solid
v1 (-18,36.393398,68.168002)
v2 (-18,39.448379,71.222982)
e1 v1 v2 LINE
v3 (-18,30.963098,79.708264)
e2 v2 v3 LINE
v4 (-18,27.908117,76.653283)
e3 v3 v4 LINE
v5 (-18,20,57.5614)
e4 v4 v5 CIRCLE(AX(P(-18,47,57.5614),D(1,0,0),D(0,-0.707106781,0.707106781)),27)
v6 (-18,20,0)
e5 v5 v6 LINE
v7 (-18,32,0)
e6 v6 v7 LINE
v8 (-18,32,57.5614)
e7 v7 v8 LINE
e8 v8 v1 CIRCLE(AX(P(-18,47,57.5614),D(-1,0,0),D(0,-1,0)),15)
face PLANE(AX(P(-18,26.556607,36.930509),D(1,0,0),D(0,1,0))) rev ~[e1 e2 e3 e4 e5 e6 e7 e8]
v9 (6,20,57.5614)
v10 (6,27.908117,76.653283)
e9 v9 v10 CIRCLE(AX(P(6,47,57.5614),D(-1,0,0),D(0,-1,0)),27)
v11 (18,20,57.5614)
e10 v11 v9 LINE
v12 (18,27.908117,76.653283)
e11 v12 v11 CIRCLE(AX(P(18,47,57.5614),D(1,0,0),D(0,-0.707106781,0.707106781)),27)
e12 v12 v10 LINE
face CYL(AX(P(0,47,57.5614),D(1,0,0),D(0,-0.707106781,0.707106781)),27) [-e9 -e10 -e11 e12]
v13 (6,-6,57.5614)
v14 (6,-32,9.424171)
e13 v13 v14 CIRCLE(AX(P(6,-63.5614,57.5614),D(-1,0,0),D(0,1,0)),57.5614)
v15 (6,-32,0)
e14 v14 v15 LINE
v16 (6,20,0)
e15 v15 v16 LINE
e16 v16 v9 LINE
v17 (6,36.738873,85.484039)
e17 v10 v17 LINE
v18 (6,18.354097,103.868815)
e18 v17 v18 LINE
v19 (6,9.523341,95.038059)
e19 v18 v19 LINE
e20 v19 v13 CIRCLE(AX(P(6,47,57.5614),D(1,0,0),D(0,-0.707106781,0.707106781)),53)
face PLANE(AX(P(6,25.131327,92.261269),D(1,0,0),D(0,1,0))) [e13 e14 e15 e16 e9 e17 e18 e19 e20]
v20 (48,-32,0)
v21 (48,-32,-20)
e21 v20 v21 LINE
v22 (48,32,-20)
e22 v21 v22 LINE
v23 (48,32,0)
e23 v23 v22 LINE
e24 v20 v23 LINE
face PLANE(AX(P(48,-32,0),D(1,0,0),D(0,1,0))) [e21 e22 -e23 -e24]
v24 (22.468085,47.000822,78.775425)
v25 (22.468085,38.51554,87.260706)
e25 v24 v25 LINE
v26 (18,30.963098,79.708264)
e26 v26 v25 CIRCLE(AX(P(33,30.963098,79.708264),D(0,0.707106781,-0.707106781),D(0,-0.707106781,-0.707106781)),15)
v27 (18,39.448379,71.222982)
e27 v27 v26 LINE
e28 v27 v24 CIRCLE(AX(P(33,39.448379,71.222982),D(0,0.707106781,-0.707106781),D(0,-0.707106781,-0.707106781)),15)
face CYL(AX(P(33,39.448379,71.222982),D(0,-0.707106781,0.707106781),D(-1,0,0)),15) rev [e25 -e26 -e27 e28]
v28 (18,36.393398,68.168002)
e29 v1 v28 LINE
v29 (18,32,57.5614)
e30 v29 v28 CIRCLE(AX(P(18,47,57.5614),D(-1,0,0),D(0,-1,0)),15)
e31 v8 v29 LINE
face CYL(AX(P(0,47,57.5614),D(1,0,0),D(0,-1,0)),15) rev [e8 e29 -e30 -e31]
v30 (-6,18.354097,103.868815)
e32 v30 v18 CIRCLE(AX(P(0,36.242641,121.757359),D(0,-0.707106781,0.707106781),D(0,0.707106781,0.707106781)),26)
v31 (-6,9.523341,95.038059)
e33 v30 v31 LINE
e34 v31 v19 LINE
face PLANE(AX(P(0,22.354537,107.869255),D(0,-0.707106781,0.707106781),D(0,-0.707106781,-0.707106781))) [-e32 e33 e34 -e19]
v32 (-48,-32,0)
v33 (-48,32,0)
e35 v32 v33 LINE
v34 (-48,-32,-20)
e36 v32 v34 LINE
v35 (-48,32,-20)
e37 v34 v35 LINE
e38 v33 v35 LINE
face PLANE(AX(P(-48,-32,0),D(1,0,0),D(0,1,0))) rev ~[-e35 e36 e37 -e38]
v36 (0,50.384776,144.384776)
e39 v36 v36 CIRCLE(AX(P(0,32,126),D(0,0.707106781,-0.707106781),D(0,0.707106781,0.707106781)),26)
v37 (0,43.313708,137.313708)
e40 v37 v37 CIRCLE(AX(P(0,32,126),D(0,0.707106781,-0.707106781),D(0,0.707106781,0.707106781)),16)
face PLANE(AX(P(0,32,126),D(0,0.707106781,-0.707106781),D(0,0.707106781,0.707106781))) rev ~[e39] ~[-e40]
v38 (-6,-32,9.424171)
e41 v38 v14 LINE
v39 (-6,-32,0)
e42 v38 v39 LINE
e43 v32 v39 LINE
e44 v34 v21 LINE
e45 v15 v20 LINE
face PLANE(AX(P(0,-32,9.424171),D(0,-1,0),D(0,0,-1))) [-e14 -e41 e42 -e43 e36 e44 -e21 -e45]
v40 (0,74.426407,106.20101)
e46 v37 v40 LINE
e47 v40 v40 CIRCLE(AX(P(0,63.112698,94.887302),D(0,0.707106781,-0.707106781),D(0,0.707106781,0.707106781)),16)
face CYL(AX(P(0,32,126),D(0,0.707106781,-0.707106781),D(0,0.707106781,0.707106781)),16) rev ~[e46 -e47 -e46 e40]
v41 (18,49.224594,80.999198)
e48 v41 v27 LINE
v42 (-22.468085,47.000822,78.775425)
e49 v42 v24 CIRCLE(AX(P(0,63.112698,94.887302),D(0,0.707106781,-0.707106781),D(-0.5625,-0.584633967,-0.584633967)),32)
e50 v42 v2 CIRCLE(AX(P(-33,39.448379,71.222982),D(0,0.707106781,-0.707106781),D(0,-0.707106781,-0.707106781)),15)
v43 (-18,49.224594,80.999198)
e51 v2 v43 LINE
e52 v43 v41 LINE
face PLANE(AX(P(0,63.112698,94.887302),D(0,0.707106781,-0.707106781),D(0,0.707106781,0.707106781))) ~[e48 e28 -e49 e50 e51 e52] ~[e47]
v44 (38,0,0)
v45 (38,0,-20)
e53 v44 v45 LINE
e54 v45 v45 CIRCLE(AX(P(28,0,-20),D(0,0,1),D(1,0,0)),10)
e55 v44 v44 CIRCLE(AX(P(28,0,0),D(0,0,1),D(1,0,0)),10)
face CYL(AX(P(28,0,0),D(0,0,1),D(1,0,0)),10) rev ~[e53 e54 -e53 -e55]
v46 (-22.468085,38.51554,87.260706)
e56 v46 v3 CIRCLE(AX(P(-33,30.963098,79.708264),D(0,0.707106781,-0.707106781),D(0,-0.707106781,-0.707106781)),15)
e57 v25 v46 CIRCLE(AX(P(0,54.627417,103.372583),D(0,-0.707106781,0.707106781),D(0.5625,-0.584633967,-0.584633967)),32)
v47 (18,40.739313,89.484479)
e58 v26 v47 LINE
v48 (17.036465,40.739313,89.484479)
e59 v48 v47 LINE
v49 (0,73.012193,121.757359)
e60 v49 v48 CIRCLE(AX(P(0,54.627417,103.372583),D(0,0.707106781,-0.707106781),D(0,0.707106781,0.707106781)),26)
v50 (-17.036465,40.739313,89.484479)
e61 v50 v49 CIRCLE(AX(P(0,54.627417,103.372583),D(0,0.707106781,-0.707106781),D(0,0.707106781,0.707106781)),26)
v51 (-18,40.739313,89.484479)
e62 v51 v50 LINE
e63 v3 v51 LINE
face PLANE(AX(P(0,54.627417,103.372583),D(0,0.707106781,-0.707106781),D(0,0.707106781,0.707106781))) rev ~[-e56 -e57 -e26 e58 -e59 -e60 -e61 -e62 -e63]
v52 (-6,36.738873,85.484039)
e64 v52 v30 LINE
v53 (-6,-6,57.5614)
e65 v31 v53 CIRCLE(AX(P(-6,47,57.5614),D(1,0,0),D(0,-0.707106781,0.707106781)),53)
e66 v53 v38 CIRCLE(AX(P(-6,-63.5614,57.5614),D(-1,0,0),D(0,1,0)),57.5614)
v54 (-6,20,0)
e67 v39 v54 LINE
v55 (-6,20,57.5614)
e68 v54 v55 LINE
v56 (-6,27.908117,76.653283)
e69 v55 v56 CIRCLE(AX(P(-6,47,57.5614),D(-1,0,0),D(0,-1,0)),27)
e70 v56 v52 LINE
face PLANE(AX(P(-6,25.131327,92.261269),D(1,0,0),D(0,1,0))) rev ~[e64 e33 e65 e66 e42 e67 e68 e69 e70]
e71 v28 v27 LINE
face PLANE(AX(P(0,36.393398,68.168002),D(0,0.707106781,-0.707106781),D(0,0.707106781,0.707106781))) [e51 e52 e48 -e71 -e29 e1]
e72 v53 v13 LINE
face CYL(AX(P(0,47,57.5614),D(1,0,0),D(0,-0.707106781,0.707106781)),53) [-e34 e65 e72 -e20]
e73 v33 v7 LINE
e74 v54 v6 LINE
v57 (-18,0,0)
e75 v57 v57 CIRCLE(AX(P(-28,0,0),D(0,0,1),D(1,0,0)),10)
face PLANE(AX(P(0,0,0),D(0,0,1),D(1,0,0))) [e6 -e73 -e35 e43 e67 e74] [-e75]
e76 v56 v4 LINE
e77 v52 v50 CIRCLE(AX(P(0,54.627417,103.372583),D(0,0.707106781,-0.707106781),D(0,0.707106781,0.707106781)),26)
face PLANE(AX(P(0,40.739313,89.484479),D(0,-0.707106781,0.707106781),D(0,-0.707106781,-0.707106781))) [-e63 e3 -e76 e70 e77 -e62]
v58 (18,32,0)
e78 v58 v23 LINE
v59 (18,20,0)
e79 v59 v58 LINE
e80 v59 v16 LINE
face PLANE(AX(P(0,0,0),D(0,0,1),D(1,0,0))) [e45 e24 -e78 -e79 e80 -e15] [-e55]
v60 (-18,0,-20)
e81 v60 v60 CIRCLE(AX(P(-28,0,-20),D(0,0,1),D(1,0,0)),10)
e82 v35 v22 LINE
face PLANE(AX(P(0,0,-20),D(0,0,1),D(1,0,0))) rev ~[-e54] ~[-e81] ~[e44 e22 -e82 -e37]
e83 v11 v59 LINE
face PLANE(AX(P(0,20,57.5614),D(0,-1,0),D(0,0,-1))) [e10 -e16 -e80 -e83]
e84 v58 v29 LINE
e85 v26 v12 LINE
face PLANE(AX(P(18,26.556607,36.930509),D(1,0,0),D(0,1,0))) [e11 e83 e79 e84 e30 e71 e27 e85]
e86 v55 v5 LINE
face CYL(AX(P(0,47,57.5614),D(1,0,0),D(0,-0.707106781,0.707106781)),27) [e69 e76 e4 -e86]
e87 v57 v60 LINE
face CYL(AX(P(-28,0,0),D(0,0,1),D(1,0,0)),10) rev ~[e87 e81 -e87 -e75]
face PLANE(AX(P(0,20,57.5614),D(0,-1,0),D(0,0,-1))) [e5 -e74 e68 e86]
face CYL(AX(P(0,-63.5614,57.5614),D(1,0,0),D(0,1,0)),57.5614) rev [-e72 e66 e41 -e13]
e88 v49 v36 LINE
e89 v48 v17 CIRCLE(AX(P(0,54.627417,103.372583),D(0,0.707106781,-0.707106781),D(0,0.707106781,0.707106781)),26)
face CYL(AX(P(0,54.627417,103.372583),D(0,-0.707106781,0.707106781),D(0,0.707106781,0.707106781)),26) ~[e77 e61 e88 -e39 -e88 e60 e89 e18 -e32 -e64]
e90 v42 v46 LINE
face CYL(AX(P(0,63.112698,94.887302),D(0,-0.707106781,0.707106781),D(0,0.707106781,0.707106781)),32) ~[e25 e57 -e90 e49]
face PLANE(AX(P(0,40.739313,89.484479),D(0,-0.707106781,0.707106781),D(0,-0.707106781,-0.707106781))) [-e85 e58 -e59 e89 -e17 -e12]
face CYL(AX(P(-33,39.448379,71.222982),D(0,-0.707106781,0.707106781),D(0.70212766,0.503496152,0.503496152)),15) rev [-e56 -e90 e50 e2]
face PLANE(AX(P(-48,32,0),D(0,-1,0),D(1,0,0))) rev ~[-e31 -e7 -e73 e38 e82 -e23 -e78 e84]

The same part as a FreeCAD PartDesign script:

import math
import FreeCAD as App
import Part
import Sketcher

V = App.Vector
Q = App.Units.Quantity


def edges_at(feature, points):
    """Names of the edges that pass closest to the given points."""
    edges = feature.Shape.Edges
    near = lambda p: min(range(len(edges)), key=lambda i: edges[i].distToShape(Part.Vertex(*p))[0])
    return sorted({f"Edge{near(p) + 1}" for p in points})

doc = App.newDocument("Part")
body = doc.addObject("PartDesign::Body", "Body")

# Sketch on XY plane
sketch1 = doc.addObject("Sketcher::SketchObject", "Sketch")
body.addObject(sketch1)
sketch1.AttachmentSupport = (doc.XY_Plane, [""])
sketch1.MapMode = "FlatFace"
sketch1.addGeometry(Part.LineSegment(V(-48, 32, 0), V(-48, -32, 0)), False)
sketch1.addGeometry(Part.LineSegment(V(-48, -32, 0), V(48, -32, 0)), False)
sketch1.addGeometry(Part.LineSegment(V(48, -32, 0), V(48, 32, 0)), False)
sketch1.addGeometry(Part.LineSegment(V(48, 32, 0), V(-48, 32, 0)), False)
sketch1.addGeometry(Part.Circle(V(-28, 0, 0), V(0, 0, 1), 10), False)
sketch1.addGeometry(Part.Circle(V(28, 0, 0), V(0, 0, 1), 10), False)
sketch1.addConstraint(Sketcher.Constraint("Coincident", 0, 2, 1, 1))
sketch1.addConstraint(Sketcher.Constraint("Coincident", 1, 2, 2, 1))
sketch1.addConstraint(Sketcher.Constraint("Coincident", 2, 2, 3, 1))
sketch1.addConstraint(Sketcher.Constraint("Coincident", 3, 2, 0, 1))
sketch1.addConstraint(Sketcher.Constraint("Vertical", 0))
sketch1.addConstraint(Sketcher.Constraint("Horizontal", 1))
sketch1.addConstraint(Sketcher.Constraint("Vertical", 2))
sketch1.addConstraint(Sketcher.Constraint("Horizontal", 3))
sketch1.addConstraint(Sketcher.Constraint("Equal", 4, 5))
sketch1.addConstraint(Sketcher.Constraint("Symmetric", 4, 3, 5, 3, -1, 1))
sketch1.addConstraint(Sketcher.Constraint("Symmetric", 0, 2, 2, 2, -1, 1))
sketch1.addConstraint(Sketcher.Constraint("PointOnObject", 4, 3, -1))
sketch1.addConstraint(Sketcher.Constraint("Diameter", 4, Q("20 mm")))
sketch1.addConstraint(Sketcher.Constraint("DistanceX", 1, 1, 1, 2, Q("96 mm")))
sketch1.addConstraint(Sketcher.Constraint("DistanceY", 0, 2, 0, 1, Q("64 mm")))
sketch1.addConstraint(Sketcher.Constraint("DistanceX", 4, 3, -1, 1, Q("28 mm")))
pad1 = doc.addObject("PartDesign::Pad", "Pad")
body.addObject(pad1)
pad1.Profile = sketch1
pad1.Length = 20
pad1.Reversed = True
body2 = doc.addObject("PartDesign::Body", "Body001")

# Sketch on YZ plane
sketch2 = doc.addObject("Sketcher::SketchObject", "Sketch001")
body2.addObject(sketch2)
sketch2.AttachmentSupport = (doc.getObject("YZ_Plane001"), [""])
sketch2.MapMode = "FlatFace"
sketch2.addGeometry(Part.LineSegment(V(50.384776, 144.384776, 0), V(43.313708, 137.313708, 0)), False)
sketch2.addGeometry(Part.LineSegment(V(43.313708, 137.313708, 0), V(74.426407, 106.20101, 0)), False)
sketch2.addGeometry(Part.LineSegment(V(74.426407, 106.20101, 0), V(85.740115, 117.514719, 0)), False)
sketch2.addGeometry(Part.LineSegment(V(85.740115, 117.514719, 0), V(77.254834, 126, 0)), False)
sketch2.addGeometry(Part.LineSegment(V(77.254834, 126, 0), V(73.012193, 121.757359, 0)), False)
sketch2.addGeometry(Part.LineSegment(V(73.012193, 121.757359, 0), V(50.384776, 144.384776, 0)), False)
sketch2.addGeometry(Part.LineSegment(V(32, 126, 0), V(63.112698, 94.887302, 0)), True)  # axis
sketch2.addConstraint(Sketcher.Constraint("Coincident", 0, 2, 1, 1))
sketch2.addConstraint(Sketcher.Constraint("Coincident", 1, 2, 2, 1))
sketch2.addConstraint(Sketcher.Constraint("Coincident", 2, 2, 3, 1))
sketch2.addConstraint(Sketcher.Constraint("Coincident", 3, 2, 4, 1))
sketch2.addConstraint(Sketcher.Constraint("Coincident", 4, 2, 5, 1))
sketch2.addConstraint(Sketcher.Constraint("Coincident", 5, 2, 0, 1))
sketch2.addConstraint(Sketcher.Constraint("Perpendicular", 0, 1))
sketch2.addConstraint(Sketcher.Constraint("Perpendicular", 1, 2))
sketch2.addConstraint(Sketcher.Constraint("Perpendicular", 2, 3))
sketch2.addConstraint(Sketcher.Constraint("Perpendicular", 3, 4))
sketch2.addConstraint(Sketcher.Constraint("Perpendicular", 4, 5))
sketch2.addConstraint(Sketcher.Constraint("Parallel", 5, 6))
sketch2.addConstraint(Sketcher.Constraint("Horizontal", 3, 2, 6, 1))
sketch2.addConstraint(Sketcher.Constraint("Equal", 1, 6))
sketch2.addConstraint(Sketcher.Constraint("Angle", 0, Q("-135 deg")))
sketch2.addConstraint(Sketcher.Constraint("Distance", 0, Q("10 mm")))
sketch2.addConstraint(Sketcher.Constraint("Distance", 1, Q("44 mm")))
sketch2.addConstraint(Sketcher.Constraint("Distance", 2, Q("16 mm")))
sketch2.addConstraint(Sketcher.Constraint("Distance", 3, Q("12 mm")))
sketch2.addConstraint(Sketcher.Constraint("DistanceY", -1, 1, 3, 2, Q("126 mm")))
sketch2.addConstraint(Sketcher.Constraint("DistanceX", -1, 1, 6, 1, Q("32 mm")))
sketch2.addConstraint(Sketcher.Constraint("DistanceX", -1, 1, 0, 2, Q("43.313708 mm")))
revolution = doc.addObject("PartDesign::Revolution", "Revolution")
body2.addObject(revolution)
revolution.Profile = sketch2
revolution.ReferenceAxis = (sketch2, ["Axis0"])
revolution.Angle = 360
body3 = doc.addObject("PartDesign::Body", "Body002")

# Sketch on YZ plane
sketch3 = doc.addObject("Sketcher::SketchObject", "Sketch002")
body3.addObject(sketch3)
sketch3.AttachmentSupport = (doc.getObject("YZ_Plane002"), [""])
sketch3.MapMode = "FlatFace"
sketch3.addGeometry(Part.LineSegment(V(27.908117, 76.653283, 0), V(40.739313, 89.484479, 0)), False)
sketch3.addGeometry(Part.LineSegment(V(40.739313, 89.484479, 0), V(22.354537, 107.869255, 0)), False)
sketch3.addGeometry(Part.LineSegment(V(22.354537, 107.869255, 0), V(9.523341, 95.038059, 0)), False)
sketch3.addGeometry(Part.ArcOfCircle(Part.Circle(V(47, 57.5614, 0), V(0, 0, 1), 53), math.radians(135), math.radians(180)), False)
sketch3.addGeometry(Part.ArcOfCircle(Part.Circle(V(-63.5614, 57.5614, 0), V(0, 0, 1), 57.5614), math.radians(-56.74896), math.radians(0)), False)
sketch3.addGeometry(Part.LineSegment(V(-32, 9.424171, 0), V(-32, 0, 0)), False)
sketch3.addGeometry(Part.LineSegment(V(-32, 0, 0), V(20, 0, 0)), False)
sketch3.addGeometry(Part.LineSegment(V(20, 0, 0), V(20, 57.5614, 0)), False)
sketch3.addGeometry(Part.ArcOfCircle(Part.Circle(V(47, 57.5614, 0), V(0, 0, 1), 27), math.radians(135), math.radians(180)), False)
sketch3.addConstraint(Sketcher.Constraint("Coincident", 0, 2, 1, 1))
sketch3.addConstraint(Sketcher.Constraint("Coincident", 1, 2, 2, 1))
sketch3.addConstraint(Sketcher.Constraint("Tangent", 2, 2, 3, 1))
sketch3.addConstraint(Sketcher.Constraint("Tangent", 3, 2, 4, 2))
sketch3.addConstraint(Sketcher.Constraint("Coincident", 4, 1, 5, 1))
sketch3.addConstraint(Sketcher.Constraint("Coincident", 5, 2, 6, 1))
sketch3.addConstraint(Sketcher.Constraint("Coincident", 6, 2, 7, 1))
sketch3.addConstraint(Sketcher.Constraint("Tangent", 7, 2, 8, 2))
sketch3.addConstraint(Sketcher.Constraint("Tangent", 8, 1, 0, 1))
sketch3.addConstraint(Sketcher.Constraint("Vertical", 5))
sketch3.addConstraint(Sketcher.Constraint("Horizontal", 6))
sketch3.addConstraint(Sketcher.Constraint("Vertical", 7))
sketch3.addConstraint(Sketcher.Constraint("Coincident", 8, 3, 3, 3))
sketch3.addConstraint(Sketcher.Constraint("PointOnObject", 5, 2, -1))
sketch3.addConstraint(Sketcher.Constraint("Perpendicular", 0, 1))
sketch3.addConstraint(Sketcher.Constraint("Perpendicular", 1, 2))
sketch3.addConstraint(Sketcher.Constraint("Horizontal", 3, 3, 4, 3))
sketch3.addConstraint(Sketcher.Constraint("Radius", 3, Q("53 mm")))
sketch3.addConstraint(Sketcher.Constraint("Radius", 8, Q("27 mm")))
sketch3.addConstraint(Sketcher.Constraint("DistanceX", 6, 1, 6, 2, Q("52 mm")))
sketch3.addConstraint(Sketcher.Constraint("Angle", 0, Q("45 deg")))
sketch3.addConstraint(Sketcher.Constraint("DistanceX", -1, 1, 3, 3, Q("47 mm")))
sketch3.addConstraint(Sketcher.Constraint("Radius", 4, Q("57.5614 mm")))
sketch3.addConstraint(Sketcher.Constraint("DistanceY", 7, 1, 7, 2, Q("57.5614 mm")))
sketch3.addConstraint(Sketcher.Constraint("Distance", 0, Q("18.146052 mm")))
pad2 = doc.addObject("PartDesign::Pad", "Pad001")
body3.addObject(pad2)
pad2.Profile = sketch3
pad2.Length = 12
pad2.Midplane = True
body4 = doc.addObject("PartDesign::Body", "Body003")

# Sketch on YZ plane
sketch4 = doc.addObject("Sketcher::SketchObject", "Sketch003")
body4.addObject(sketch4)
sketch4.AttachmentSupport = (doc.getObject("YZ_Plane003"), [""])
sketch4.MapMode = "FlatFace"
sketch4.addGeometry(Part.LineSegment(V(20, 0, 0), V(32, 0, 0)), False)
sketch4.addGeometry(Part.LineSegment(V(32, 0, 0), V(32, 57.5614, 0)), False)
sketch4.addGeometry(Part.ArcOfCircle(Part.Circle(V(47, 57.5614, 0), V(0, 0, 1), 15), math.radians(135), math.radians(180)), False)
sketch4.addGeometry(Part.LineSegment(V(36.393398, 68.168002, 0), V(49.224594, 80.999198, 0)), False)
sketch4.addGeometry(Part.LineSegment(V(49.224594, 80.999198, 0), V(40.739313, 89.484479, 0)), False)
sketch4.addGeometry(Part.LineSegment(V(40.739313, 89.484479, 0), V(27.908117, 76.653283, 0)), False)
sketch4.addGeometry(Part.ArcOfCircle(Part.Circle(V(47, 57.5614, 0), V(0, 0, 1), 27), math.radians(135), math.radians(180)), False)
sketch4.addGeometry(Part.LineSegment(V(20, 57.5614, 0), V(20, 0, 0)), False)
sketch4.addConstraint(Sketcher.Constraint("Coincident", 0, 2, 1, 1))
sketch4.addConstraint(Sketcher.Constraint("Tangent", 1, 2, 2, 2))
sketch4.addConstraint(Sketcher.Constraint("Tangent", 2, 1, 3, 1))
sketch4.addConstraint(Sketcher.Constraint("Coincident", 3, 2, 4, 1))
sketch4.addConstraint(Sketcher.Constraint("Coincident", 4, 2, 5, 1))
sketch4.addConstraint(Sketcher.Constraint("Tangent", 5, 2, 6, 1))
sketch4.addConstraint(Sketcher.Constraint("Tangent", 6, 2, 7, 1))
sketch4.addConstraint(Sketcher.Constraint("Coincident", 7, 2, 0, 1))
sketch4.addConstraint(Sketcher.Constraint("Horizontal", 0))
sketch4.addConstraint(Sketcher.Constraint("Vertical", 1))
sketch4.addConstraint(Sketcher.Constraint("Vertical", 7))
sketch4.addConstraint(Sketcher.Constraint("Coincident", 6, 3, 2, 3))
sketch4.addConstraint(Sketcher.Constraint("PointOnObject", 0, 2, -1))
sketch4.addConstraint(Sketcher.Constraint("Perpendicular", 3, 4))
sketch4.addConstraint(Sketcher.Constraint("Perpendicular", 4, 5))
sketch4.addConstraint(Sketcher.Constraint("Radius", 2, Q("15 mm")))
sketch4.addConstraint(Sketcher.Constraint("Radius", 6, Q("27 mm")))
sketch4.addConstraint(Sketcher.Constraint("Angle", 3, Q("45 deg")))
sketch4.addConstraint(Sketcher.Constraint("DistanceX", -1, 1, 2, 3, Q("47 mm")))
sketch4.addConstraint(Sketcher.Constraint("DistanceY", 1, 1, 1, 2, Q("57.5614 mm")))
sketch4.addConstraint(Sketcher.Constraint("Distance", 3, Q("18.146052 mm")))
pad3 = doc.addObject("PartDesign::Pad", "Pad002")
body4.addObject(pad3)
pad3.Profile = sketch4
pad3.Length = 36
pad3.Midplane = True
doc.recompute()

boolean = doc.addObject("PartDesign::Boolean", "Boolean")
body4.addObject(boolean)
boolean.Type = "Fuse"
boolean.addObjects([body])
doc.recompute()

boolean2 = doc.addObject("PartDesign::Boolean", "Boolean001")
body4.addObject(boolean2)
boolean2.Type = "Fuse"
boolean2.addObjects([body2])
doc.recompute()

boolean3 = doc.addObject("PartDesign::Boolean", "Boolean002")
body4.addObject(boolean3)
boolean3.Type = "Fuse"
boolean3.addObjects([body3])
doc.recompute()

fillet = doc.addObject("PartDesign::Fillet", "Fillet")
body4.addObject(fillet)
fillet.Base = (boolean3, edges_at(boolean3, [(18, 40.162, 80.422), (-18, 40.162, 80.422)]))
fillet.Radius = 15

doc.recompute()
